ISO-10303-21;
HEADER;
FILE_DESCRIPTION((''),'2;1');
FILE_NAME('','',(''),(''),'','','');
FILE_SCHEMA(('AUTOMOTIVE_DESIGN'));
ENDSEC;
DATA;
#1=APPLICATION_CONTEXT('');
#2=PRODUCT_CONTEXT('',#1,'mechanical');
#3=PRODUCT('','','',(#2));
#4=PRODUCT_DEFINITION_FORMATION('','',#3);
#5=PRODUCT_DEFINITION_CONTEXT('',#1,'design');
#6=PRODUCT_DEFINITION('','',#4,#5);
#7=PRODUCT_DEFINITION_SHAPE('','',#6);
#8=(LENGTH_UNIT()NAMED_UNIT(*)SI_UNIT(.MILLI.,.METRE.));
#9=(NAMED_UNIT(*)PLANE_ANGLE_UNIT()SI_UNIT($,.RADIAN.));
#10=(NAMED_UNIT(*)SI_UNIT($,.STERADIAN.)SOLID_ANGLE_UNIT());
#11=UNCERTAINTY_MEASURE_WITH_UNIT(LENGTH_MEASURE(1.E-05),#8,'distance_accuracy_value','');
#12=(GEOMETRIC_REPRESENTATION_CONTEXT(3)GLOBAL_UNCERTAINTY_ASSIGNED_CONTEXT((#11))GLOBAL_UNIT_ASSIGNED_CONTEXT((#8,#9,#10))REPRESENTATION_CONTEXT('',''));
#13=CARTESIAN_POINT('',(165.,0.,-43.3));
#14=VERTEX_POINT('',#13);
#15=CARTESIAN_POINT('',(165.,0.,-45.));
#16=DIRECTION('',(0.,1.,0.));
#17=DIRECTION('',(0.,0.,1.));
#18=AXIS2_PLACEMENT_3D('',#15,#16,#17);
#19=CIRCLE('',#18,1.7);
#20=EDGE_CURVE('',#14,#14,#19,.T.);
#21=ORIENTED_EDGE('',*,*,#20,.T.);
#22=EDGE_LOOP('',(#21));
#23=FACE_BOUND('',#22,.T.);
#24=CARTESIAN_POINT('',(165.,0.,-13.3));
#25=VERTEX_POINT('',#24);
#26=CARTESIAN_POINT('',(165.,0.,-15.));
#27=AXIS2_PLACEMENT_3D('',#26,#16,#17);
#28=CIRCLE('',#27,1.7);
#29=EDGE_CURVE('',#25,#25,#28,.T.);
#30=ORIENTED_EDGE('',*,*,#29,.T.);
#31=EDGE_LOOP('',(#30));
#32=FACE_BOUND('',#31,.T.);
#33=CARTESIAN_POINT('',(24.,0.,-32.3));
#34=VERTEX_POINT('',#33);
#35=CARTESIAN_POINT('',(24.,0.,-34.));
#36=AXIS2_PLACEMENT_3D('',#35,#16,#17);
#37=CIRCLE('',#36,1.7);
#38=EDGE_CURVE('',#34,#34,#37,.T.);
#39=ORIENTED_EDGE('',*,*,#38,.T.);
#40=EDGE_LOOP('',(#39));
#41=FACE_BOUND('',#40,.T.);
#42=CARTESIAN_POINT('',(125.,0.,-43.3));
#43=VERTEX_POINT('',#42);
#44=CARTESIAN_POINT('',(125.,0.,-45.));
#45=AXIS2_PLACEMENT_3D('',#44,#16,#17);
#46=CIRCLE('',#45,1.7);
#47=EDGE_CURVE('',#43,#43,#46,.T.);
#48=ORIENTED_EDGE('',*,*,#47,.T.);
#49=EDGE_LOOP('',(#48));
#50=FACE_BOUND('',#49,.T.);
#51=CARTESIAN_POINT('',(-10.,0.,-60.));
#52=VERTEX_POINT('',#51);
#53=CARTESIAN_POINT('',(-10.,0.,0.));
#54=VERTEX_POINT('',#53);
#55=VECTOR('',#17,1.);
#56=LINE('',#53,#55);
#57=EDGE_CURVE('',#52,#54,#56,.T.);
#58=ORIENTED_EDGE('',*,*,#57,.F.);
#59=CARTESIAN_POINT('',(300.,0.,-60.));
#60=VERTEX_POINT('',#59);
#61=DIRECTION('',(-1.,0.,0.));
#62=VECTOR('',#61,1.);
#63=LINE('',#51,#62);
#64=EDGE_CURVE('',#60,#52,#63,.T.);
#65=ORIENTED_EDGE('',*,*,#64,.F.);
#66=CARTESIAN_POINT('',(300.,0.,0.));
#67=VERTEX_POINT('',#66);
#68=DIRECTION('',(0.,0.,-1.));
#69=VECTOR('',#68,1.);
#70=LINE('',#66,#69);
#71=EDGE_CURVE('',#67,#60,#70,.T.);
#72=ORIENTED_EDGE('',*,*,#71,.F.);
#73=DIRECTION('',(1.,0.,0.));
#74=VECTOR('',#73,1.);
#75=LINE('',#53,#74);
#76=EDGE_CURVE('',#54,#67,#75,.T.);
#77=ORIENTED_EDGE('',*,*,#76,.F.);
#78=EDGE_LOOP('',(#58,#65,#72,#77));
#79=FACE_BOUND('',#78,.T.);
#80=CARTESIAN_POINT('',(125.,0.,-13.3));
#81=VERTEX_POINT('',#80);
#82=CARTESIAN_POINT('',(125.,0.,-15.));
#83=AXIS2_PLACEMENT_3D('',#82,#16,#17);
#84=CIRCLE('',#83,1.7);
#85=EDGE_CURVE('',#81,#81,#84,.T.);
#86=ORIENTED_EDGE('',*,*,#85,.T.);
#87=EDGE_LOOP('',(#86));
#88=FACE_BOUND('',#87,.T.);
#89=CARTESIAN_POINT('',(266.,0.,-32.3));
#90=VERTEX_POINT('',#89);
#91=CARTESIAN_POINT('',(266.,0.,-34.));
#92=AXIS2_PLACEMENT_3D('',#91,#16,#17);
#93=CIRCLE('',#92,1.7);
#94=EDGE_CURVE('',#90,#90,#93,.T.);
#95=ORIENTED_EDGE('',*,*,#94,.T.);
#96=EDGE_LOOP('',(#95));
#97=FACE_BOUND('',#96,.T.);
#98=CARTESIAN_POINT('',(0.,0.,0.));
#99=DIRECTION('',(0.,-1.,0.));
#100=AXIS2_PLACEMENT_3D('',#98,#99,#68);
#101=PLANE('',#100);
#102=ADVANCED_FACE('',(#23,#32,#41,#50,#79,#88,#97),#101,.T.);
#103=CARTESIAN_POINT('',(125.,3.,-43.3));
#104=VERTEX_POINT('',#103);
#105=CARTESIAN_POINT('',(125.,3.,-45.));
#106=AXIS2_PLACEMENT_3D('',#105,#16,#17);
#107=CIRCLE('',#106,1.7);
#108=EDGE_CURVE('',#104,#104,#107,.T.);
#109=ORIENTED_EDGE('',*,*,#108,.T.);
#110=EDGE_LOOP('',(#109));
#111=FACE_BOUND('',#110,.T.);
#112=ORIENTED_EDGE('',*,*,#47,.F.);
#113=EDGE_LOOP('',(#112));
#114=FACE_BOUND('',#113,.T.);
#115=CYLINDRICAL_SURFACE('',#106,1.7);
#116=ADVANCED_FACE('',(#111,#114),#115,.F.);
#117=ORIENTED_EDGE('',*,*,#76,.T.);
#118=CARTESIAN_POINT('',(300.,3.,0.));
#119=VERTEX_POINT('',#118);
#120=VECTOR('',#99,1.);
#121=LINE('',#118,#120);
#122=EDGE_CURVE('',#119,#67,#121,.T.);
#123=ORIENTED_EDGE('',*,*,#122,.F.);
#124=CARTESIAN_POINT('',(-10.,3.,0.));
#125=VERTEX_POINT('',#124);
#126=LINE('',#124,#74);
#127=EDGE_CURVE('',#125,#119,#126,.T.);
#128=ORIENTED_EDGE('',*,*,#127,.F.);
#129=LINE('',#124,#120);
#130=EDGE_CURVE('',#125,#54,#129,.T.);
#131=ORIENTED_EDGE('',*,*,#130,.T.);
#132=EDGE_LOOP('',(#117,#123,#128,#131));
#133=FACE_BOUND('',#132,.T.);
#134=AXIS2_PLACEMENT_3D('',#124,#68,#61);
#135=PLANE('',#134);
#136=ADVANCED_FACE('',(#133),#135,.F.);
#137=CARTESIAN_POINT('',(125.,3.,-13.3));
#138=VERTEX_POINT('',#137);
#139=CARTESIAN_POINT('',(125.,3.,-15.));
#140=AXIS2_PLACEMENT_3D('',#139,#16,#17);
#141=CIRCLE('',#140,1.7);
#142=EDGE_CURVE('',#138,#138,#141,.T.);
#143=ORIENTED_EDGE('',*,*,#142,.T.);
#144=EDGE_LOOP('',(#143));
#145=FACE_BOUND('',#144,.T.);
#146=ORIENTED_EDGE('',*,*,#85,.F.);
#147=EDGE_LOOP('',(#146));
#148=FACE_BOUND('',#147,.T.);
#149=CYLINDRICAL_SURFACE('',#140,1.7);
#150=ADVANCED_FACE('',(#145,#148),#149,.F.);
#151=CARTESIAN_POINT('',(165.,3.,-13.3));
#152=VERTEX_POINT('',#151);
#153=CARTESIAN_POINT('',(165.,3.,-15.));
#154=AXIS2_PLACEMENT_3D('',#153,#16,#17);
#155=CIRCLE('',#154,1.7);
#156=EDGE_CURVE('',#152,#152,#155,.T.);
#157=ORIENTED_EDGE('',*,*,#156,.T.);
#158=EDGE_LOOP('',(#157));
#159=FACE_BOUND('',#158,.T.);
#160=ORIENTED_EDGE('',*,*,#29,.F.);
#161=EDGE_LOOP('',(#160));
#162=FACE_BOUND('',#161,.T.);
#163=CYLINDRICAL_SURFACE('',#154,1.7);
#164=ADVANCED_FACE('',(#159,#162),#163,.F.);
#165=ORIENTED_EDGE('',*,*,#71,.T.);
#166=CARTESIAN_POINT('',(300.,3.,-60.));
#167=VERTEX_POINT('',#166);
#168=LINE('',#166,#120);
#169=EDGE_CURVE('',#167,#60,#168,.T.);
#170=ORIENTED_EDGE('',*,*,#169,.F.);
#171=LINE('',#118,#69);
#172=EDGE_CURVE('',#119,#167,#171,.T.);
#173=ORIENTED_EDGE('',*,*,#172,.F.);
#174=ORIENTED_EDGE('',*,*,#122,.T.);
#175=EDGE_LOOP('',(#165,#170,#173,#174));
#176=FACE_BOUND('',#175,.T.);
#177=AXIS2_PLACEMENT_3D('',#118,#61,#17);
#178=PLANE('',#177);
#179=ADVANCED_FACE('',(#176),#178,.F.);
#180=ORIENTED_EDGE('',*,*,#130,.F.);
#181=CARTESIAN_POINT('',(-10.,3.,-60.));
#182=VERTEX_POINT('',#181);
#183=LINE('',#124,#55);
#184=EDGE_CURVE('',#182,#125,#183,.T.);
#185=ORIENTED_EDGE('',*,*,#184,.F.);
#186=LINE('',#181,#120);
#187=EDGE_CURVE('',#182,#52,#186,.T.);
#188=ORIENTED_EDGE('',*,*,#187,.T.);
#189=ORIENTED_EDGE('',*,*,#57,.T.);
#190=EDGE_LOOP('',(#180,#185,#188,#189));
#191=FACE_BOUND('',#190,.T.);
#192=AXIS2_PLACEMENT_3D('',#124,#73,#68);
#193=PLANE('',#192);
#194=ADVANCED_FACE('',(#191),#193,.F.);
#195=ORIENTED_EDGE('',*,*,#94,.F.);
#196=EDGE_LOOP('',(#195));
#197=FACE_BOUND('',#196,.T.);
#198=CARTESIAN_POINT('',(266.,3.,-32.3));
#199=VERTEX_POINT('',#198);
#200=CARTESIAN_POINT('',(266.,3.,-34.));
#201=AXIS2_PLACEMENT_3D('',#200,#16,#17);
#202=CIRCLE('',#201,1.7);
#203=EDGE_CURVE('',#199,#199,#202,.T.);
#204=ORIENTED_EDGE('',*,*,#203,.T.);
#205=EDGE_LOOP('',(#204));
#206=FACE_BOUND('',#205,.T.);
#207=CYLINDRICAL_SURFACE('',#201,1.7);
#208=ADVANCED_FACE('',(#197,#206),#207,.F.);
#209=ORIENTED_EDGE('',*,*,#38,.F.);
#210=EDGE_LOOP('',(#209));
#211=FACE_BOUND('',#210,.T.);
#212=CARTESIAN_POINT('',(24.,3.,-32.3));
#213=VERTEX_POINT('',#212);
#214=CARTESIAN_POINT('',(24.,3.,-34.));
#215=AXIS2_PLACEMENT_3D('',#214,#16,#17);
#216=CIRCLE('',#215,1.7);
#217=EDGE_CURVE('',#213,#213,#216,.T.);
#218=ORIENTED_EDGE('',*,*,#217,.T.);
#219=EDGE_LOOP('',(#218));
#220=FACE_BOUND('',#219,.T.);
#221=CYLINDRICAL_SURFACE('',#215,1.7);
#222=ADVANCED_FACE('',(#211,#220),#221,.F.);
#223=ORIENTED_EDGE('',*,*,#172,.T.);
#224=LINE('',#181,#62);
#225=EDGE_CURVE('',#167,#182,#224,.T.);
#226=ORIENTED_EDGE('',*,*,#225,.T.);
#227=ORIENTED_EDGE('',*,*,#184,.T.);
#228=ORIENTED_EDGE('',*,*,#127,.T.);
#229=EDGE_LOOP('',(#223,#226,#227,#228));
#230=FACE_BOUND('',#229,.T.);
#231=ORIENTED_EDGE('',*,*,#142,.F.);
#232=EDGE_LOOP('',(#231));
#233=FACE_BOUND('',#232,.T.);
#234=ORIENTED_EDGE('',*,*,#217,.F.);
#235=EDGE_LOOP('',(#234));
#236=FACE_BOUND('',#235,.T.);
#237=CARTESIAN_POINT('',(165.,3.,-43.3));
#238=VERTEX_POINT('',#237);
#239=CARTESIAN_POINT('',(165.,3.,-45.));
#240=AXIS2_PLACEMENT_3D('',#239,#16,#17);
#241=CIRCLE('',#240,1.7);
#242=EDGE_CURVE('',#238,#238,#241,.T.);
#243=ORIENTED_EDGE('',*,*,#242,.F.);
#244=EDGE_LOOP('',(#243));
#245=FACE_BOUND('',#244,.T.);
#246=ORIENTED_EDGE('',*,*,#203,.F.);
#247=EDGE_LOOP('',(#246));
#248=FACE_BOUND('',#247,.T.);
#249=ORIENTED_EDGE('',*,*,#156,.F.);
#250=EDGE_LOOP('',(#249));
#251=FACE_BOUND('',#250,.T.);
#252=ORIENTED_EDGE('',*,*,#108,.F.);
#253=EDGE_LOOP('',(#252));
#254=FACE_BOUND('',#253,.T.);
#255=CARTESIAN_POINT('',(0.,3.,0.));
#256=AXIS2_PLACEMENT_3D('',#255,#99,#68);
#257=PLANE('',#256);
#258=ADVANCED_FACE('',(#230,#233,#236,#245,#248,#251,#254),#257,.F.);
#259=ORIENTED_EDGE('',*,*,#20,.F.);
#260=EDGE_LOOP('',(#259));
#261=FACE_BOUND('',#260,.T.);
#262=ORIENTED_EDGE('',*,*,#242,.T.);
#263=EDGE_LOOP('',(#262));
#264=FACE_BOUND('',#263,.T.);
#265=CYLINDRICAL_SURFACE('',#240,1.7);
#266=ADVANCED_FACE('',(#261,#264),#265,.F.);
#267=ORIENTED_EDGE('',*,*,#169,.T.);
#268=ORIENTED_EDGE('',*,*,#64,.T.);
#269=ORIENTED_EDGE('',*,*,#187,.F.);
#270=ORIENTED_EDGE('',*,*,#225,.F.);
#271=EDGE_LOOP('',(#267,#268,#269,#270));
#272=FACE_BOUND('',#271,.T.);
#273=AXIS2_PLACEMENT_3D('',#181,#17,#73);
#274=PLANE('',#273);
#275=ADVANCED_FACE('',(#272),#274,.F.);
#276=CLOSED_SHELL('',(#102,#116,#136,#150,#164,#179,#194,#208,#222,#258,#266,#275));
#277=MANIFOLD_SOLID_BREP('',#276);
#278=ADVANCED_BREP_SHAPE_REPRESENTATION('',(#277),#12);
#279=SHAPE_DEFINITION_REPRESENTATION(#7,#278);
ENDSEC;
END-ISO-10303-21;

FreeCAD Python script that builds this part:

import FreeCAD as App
import Part
import Sketcher
from FreeCAD import Vector
Q = App.Units.Quantity


def add_polygon(sketch, points):
    """Adds a closed chain of lines whose ends are joined by coincident constraints."""
    first, n = sketch.GeometryCount, len(points)
    for a, b in zip(points, points[1:] + points[:1]):
        sketch.addGeometry(Part.LineSegment(App.Vector(*a, 0), App.Vector(*b, 0)), False)
    for i in range(n):
        sketch.addConstraint(Sketcher.Constraint("Coincident", first + i, 2, first + (i + 1) % n, 1))

doc = App.newDocument("Part")
body = doc.addObject("PartDesign::Body", "Body")

# Sketch on XZ plane
sketch1 = doc.addObject("Sketcher::SketchObject", "Sketch")
body.addObject(sketch1)
sketch1.AttachmentSupport = (doc.XZ_Plane, [""])
sketch1.MapMode = "FlatFace"
add_polygon(sketch1, [(-10, -60), (-10, 0), (300, 0), (300, -60)])  # lines 0-3
sketch1.addConstraint(Sketcher.Constraint("Vertical", 0))
sketch1.addConstraint(Sketcher.Constraint("Horizontal", 1))
sketch1.addConstraint(Sketcher.Constraint("Vertical", 2))
sketch1.addConstraint(Sketcher.Constraint("Horizontal", 3))
sketch1.addConstraint(Sketcher.Constraint("PointOnObject", 0, 2, -1))
sketch1.addConstraint(Sketcher.Constraint("DistanceX", 1, 1, 1, 2, Q("310 mm")))
sketch1.addConstraint(Sketcher.Constraint("DistanceY", 0, 1, 0, 2, Q("60 mm")))
sketch1.addConstraint(Sketcher.Constraint("DistanceX", 0, 2, -1, 1, Q("10 mm")))
pad1 = doc.addObject("PartDesign::Pad", "Pad")
body.addObject(pad1)
pad1.Profile = sketch1
pad1.Length = 3
pad1.Reversed = True

# Sketch on XZ plane
sketch2 = doc.addObject("Sketcher::SketchObject", "Sketch001")
body.addObject(sketch2)
sketch2.AttachmentSupport = (doc.XZ_Plane, [""])
sketch2.MapMode = "FlatFace"
sketch2.AttachmentOffset = App.Placement(Vector(0, 0, -3), App.Rotation())
sketch2.addGeometry(Part.Circle(Vector(266, -34, 0), Vector(0, 0, 1), 1.7), False)
sketch2.addGeometry(Part.Circle(Vector(24, -34, 0), Vector(0, 0, 1), 1.7), False)
sketch2.addGeometry(Part.Circle(Vector(125, -15, 0), Vector(0, 0, 1), 1.7), False)
sketch2.addGeometry(Part.Circle(Vector(165, -15, 0), Vector(0, 0, 1), 1.7), False)
sketch2.addGeometry(Part.Circle(Vector(165, -45, 0), Vector(0, 0, 1), 1.7), False)
sketch2.addGeometry(Part.Circle(Vector(125, -45, 0), Vector(0, 0, 1), 1.7), False)
sketch2.addConstraint(Sketcher.Constraint("Equal", 0, 1))
sketch2.addConstraint(Sketcher.Constraint("Equal", 1, 2))
sketch2.addConstraint(Sketcher.Constraint("Equal", 2, 3))
sketch2.addConstraint(Sketcher.Constraint("Equal", 3, 4))
sketch2.addConstraint(Sketcher.Constraint("Equal", 4, 5))
sketch2.addConstraint(Sketcher.Constraint("Horizontal", 0, 3, 1, 3))
sketch2.addConstraint(Sketcher.Constraint("Horizontal", 2, 3, 3, 3))
sketch2.addConstraint(Sketcher.Constraint("Horizontal", 4, 3, 5, 3))
sketch2.addConstraint(Sketcher.Constraint("Vertical", 3, 3, 4, 3))
sketch2.addConstraint(Sketcher.Constraint("Vertical", 2, 3, 5, 3))
sketch2.addConstraint(Sketcher.Constraint("Diameter", 0, Q("3.4 mm")))
sketch2.addConstraint(Sketcher.Constraint("DistanceX", -1, 1, 0, 3, Q("266 mm")))
sketch2.addConstraint(Sketcher.Constraint("DistanceY", 0, 3, -1, 1, Q("34 mm")))
sketch2.addConstraint(Sketcher.Constraint("DistanceX", -1, 1, 1, 3, Q("24 mm")))
sketch2.addConstraint(Sketcher.Constraint("DistanceX", -1, 1, 2, 3, Q("125 mm")))
sketch2.addConstraint(Sketcher.Constraint("DistanceY", 2, 3, -1, 1, Q("15 mm")))
sketch2.addConstraint(Sketcher.Constraint("DistanceX", -1, 1, 3, 3, Q("165 mm")))
sketch2.addConstraint(Sketcher.Constraint("DistanceY", 4, 3, -1, 1, Q("45 mm")))
doc.recompute()
hole = doc.addObject("PartDesign::Hole", "Hole")
body.addObject(hole)
hole.Profile = sketch2
hole.ThreadType = "None"
hole.Diameter = 3.4
hole.DepthType = "ThroughAll"
hole.Reversed = True

doc.recompute()
